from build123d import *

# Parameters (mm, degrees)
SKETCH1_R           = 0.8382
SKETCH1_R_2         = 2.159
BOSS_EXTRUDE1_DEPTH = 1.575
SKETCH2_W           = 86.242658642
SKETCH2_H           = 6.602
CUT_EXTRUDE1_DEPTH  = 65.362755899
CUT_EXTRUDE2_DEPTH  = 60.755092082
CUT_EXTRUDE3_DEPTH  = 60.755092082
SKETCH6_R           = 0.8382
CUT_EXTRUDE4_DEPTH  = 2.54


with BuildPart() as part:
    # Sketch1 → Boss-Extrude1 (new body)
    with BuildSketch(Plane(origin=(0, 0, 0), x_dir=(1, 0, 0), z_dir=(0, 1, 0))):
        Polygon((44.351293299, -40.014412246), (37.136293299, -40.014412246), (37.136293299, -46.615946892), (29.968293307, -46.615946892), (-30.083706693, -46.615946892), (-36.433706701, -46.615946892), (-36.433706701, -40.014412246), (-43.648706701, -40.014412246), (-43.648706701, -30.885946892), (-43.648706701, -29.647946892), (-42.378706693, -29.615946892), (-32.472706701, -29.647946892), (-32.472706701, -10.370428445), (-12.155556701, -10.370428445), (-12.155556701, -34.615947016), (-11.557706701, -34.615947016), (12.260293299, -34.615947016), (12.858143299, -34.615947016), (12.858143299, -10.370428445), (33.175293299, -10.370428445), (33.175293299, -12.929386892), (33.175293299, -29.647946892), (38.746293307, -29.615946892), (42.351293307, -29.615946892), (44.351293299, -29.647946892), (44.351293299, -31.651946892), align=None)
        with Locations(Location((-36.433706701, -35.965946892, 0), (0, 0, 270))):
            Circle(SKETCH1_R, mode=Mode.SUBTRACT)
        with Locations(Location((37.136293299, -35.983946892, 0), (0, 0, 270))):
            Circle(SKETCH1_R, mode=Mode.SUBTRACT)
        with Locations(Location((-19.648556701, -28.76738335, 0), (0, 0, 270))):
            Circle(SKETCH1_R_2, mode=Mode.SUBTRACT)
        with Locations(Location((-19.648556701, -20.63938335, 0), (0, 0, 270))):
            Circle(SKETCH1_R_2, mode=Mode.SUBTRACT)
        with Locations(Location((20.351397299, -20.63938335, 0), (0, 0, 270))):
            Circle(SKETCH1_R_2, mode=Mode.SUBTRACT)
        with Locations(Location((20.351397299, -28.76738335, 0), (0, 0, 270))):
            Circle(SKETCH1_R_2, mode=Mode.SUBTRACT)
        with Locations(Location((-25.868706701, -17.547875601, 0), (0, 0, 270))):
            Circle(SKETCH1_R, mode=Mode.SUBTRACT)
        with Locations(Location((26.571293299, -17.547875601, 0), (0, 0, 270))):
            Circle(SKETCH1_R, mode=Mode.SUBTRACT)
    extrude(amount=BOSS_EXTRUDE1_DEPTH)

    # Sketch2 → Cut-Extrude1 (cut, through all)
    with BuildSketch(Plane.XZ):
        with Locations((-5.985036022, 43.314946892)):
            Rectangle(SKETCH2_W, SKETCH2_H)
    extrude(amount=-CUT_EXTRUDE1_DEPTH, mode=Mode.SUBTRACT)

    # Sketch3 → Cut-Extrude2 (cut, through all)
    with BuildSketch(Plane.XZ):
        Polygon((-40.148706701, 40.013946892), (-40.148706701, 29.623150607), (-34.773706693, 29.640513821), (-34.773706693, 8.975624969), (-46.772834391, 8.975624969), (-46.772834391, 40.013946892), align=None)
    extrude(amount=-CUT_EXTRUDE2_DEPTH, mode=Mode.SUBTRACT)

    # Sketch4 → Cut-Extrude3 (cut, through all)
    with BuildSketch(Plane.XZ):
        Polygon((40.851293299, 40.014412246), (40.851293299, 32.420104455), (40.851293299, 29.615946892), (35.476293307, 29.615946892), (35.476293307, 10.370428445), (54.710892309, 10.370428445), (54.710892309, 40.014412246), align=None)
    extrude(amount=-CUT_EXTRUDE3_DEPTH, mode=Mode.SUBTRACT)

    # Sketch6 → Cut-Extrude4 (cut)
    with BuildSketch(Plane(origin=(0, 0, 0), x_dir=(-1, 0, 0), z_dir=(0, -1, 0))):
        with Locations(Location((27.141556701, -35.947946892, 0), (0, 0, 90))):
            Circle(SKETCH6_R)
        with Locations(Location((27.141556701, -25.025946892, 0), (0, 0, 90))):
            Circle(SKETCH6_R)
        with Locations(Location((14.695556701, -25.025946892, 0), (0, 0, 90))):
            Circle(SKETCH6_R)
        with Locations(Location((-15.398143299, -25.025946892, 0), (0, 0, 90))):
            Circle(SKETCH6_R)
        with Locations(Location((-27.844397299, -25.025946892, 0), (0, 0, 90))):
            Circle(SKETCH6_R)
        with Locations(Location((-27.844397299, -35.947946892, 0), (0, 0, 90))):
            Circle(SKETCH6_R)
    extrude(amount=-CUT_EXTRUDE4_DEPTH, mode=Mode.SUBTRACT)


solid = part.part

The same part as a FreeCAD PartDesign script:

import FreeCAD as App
import Part
import Sketcher

V = App.Vector
Q = App.Units.Quantity


def add_polygon(sketch, points):
    """Adds a closed chain of lines whose ends are joined by coincident constraints."""
    first, n = sketch.GeometryCount, len(points)
    for a, b in zip(points, points[1:] + points[:1]):
        sketch.addGeometry(Part.LineSegment(App.Vector(*a, 0), App.Vector(*b, 0)), False)
    for i in range(n):
        sketch.addConstraint(Sketcher.Constraint("Coincident", first + i, 2, first + (i + 1) % n, 1))

doc = App.newDocument("Part")
params = doc.addObject("Spreadsheet::Sheet", "Params")
for row, (alias, value) in enumerate([
    ("sketch1_diameter", "0.17 in"),
    ("sketch1_diameter2", "0.066 in"),
    ("pad1_length", "1.575 mm"),
    ("sketch5_diameter", "0.066 in"),
    ("pocket4_length", "0.1 in"),
], start=1):
    params.set(f"A{row}", alias)
    params.set(f"B{row}", "=" + value)
    params.setAlias(f"B{row}", alias)

body = doc.addObject("PartDesign::Body", "Body")

sketch1 = doc.addObject("Sketcher::SketchObject", "Sketch")
body.addObject(sketch1)
sketch1.AttachmentSupport = (doc.XZ_Plane, [""])
sketch1.MapMode = "FlatFace"
add_polygon(sketch1, [(37.136293, 40.014412), (44.351293, 40.014412), (44.351293, 29.647947), (42.351293, 29.615947), (38.746293, 29.615947), (33.175293, 29.647947), (33.175293, 10.370428), (12.858143, 10.370428), (12.858143, 34.615947), (-12.155557, 34.615947), (-12.155557, 10.370428), (-32.472707, 10.370428), (-32.472707, 29.647947), (-42.378707, 29.615947), (-43.648707, 29.647947), (-43.648707, 40.014412), (-36.433707, 40.014412), (-36.433707, 46.615947), (37.136293, 46.615947)])
sketch1.addGeometry(Part.Circle(V(37.136293, 35.983947, 0), V(0, 0, 1), 0.8382), False)
sketch1.addGeometry(Part.Circle(V(20.351397, 28.767383, 0), V(0, 0, 1), 2.159), False)
sketch1.addGeometry(Part.Circle(V(-36.433707, 35.965947, 0), V(0, 0, 1), 0.8382), False)
sketch1.addGeometry(Part.Circle(V(-19.648557, 28.767383, 0), V(0, 0, 1), 2.159), False)
sketch1.addGeometry(Part.Circle(V(20.351397, 20.639383, 0), V(0, 0, 1), 2.159), False)
sketch1.addGeometry(Part.Circle(V(26.571293, 17.547876, 0), V(0, 0, 1), 0.8382), False)
sketch1.addGeometry(Part.Circle(V(-19.648557, 20.639383, 0), V(0, 0, 1), 2.159), False)
sketch1.addGeometry(Part.Circle(V(-25.868707, 17.547876, 0), V(0, 0, 1), 0.8382), False)
sketch1.addConstraint(Sketcher.Constraint("Horizontal", 0))
sketch1.addConstraint(Sketcher.Constraint("Vertical", 1))
sketch1.addConstraint(Sketcher.Constraint("Horizontal", 3))
sketch1.addConstraint(Sketcher.Constraint("Vertical", 5))
sketch1.addConstraint(Sketcher.Constraint("Horizontal", 6))
sketch1.addConstraint(Sketcher.Constraint("Vertical", 7))
sketch1.addConstraint(Sketcher.Constraint("Horizontal", 8))
sketch1.addConstraint(Sketcher.Constraint("Vertical", 9))
sketch1.addConstraint(Sketcher.Constraint("Horizontal", 10))
sketch1.addConstraint(Sketcher.Constraint("Vertical", 11))
sketch1.addConstraint(Sketcher.Constraint("Vertical", 14))
sketch1.addConstraint(Sketcher.Constraint("Horizontal", 15))
sketch1.addConstraint(Sketcher.Constraint("Vertical", 16))
sketch1.addConstraint(Sketcher.Constraint("Horizontal", 17))
sketch1.addConstraint(Sketcher.Constraint("Vertical", 18))
sketch1.addConstraint(Sketcher.Constraint("Equal", 19, 21))
sketch1.addConstraint(Sketcher.Constraint("Equal", 20, 22))
sketch1.addConstraint(Sketcher.Constraint("Equal", 22, 23))
sketch1.addConstraint(Sketcher.Constraint("Equal", 21, 24))
sketch1.addConstraint(Sketcher.Constraint("Equal", 23, 25))
sketch1.addConstraint(Sketcher.Constraint("Equal", 24, 26))
sketch1.addConstraint(Sketcher.Constraint("Horizontal", 20, 3, 22, 3))
sketch1.addConstraint(Sketcher.Constraint("Horizontal", 23, 3, 25, 3))
sketch1.addConstraint(Sketcher.Constraint("Horizontal", 24, 3, 26, 3))
sketch1.addConstraint(Sketcher.Constraint("Horizontal", 1, 2, 4, 2))
sketch1.addConstraint(Sketcher.Constraint("Horizontal", 6, 2, 9, 2))
sketch1.addConstraint(Sketcher.Constraint("Horizontal", 4, 2, 11, 2))
sketch1.addConstraint(Sketcher.Constraint("Horizontal", 3, 2, 12, 2))
sketch1.addConstraint(Sketcher.Constraint("Horizontal", 11, 2, 13, 2))
sketch1.addConstraint(Sketcher.Constraint("Horizontal", 0, 2, 14, 2))
sketch1.addConstraint(Sketcher.Constraint("Vertical", 20, 3, 23, 3))
sketch1.addConstraint(Sketcher.Constraint("Vertical", 22, 3, 25, 3))
sketch1.addConstraint(Sketcher.Constraint("Vertical", 21, 3, 15, 2))
sketch1.addConstraint(Sketcher.Constraint("Vertical", 19, 3, 17, 2))
sketch1.addConstraint(Sketcher.Constraint("Equal", 6, 10))
sketch1.addConstraint(Sketcher.Constraint("Equal", 0, 15))
sketch1.addConstraint(Sketcher.Constraint("Diameter", 20, Q("0.17 in")))
sketch1.addConstraint(Sketcher.Constraint("Diameter", 19, Q("0.066 in")))
sketch1.addConstraint(Sketcher.Constraint("DistanceX", 24, 3, 0, 2, Q("0.7 in")))
sketch1.addConstraint(Sketcher.Constraint("DistanceX", 13, 2, 26, 3, Q("0.7 in")))
sketch1.addConstraint(Sketcher.Constraint("DistanceY", 23, 3, 20, 3, Q("0.32 in")))
sketch1.addConstraint(Sketcher.Constraint("DistanceX", 4, 2, 1, 2, Q("0.44 in")))
sketch1.addConstraint(Sketcher.Constraint("DistanceX", 10, 2, 26, 3, Q("0.26 in")))
sketch1.addConstraint(Sketcher.Constraint("DistanceY", 12, 2, 21, 3, Q("0.25 in")))
sketch1.addConstraint(Sketcher.Constraint("DistanceX", 12, 2, 11, 2, Q("0.39 in")))
sketch1.addConstraint(Sketcher.Constraint("DistanceX", 22, 3, 8, 2, Q("0.295 in")))
sketch1.addConstraint(Sketcher.Constraint("DistanceX", 0, 1, 0, 2, Q("7.215 mm")))
sketch1.addConstraint(Sketcher.Constraint("DistanceX", 3, 2, 3, 1, Q("3.605 mm")))
sketch1.addConstraint(Sketcher.Constraint("DistanceX", 8, 2, 8, 1, Q("25.0137 mm")))
sketch1.addConstraint(Sketcher.Constraint("DistanceX", 17, 1, 17, 2, Q("73.57 mm")))
sketch1.addConstraint(Sketcher.Constraint("DistanceY", 5, 2, 5, 1, Q("19.277518 mm")))
sketch1.addConstraint(Sketcher.Constraint("DistanceY", 7, 1, 7, 2, Q("24.245519 mm")))
sketch1.addConstraint(Sketcher.Constraint("DistanceY", 21, 3, 19, 3, Q("0.018 mm")))
sketch1.addConstraint(Sketcher.Constraint("DistanceY", 1, 2, 19, 3, Q("6.336 mm")))
sketch1.addConstraint(Sketcher.Constraint("DistanceX", 2, 2, 1, 2, Q("2 mm")))
sketch1.addConstraint(Sketcher.Constraint("DistanceY", 21, 3, 16, 2, Q("10.65 mm")))
sketch1.addConstraint(Sketcher.Constraint("DistanceY", 1, 2, 1, 1, Q("10.366465 mm")))
sketch1.addConstraint(Sketcher.Constraint("DistanceY", -1, 1, 5, 2, Q("10.370428 mm")))
sketch1.addConstraint(Sketcher.Constraint("DistanceY", 24, 3, 19, 3, Q("18.436071 mm")))
sketch1.addConstraint(Sketcher.Constraint("DistanceY", 20, 3, 0, 2, Q("11.247029 mm")))
sketch1.addConstraint(Sketcher.Constraint("DistanceX", -1, 1, 19, 3, Q("37.136293 mm")))
sketch1.addConstraint(Sketcher.Constraint("DistanceX", -1, 1, 20, 3, Q("20.351397 mm")))
sketch1.setExpression("Constraints[55]", "Params.sketch1_diameter")
sketch1.setExpression("Constraints[56]", "Params.sketch1_diameter2")
pad1 = doc.addObject("PartDesign::Pad", "Pad")
body.addObject(pad1)
pad1.Profile = sketch1
pad1.setExpression("Length", "Params.pad1_length")
pad1.Reversed = True

sketch2 = doc.addObject("Sketcher::SketchObject", "Sketch001")
body.addObject(sketch2)
sketch2.AttachmentSupport = (doc.XZ_Plane, [""])
sketch2.MapMode = "FlatFace"
add_polygon(sketch2, [(-49.106365, 46.615947), (-49.106365, 40.013947), (37.136293, 40.013947), (37.136293, 46.615947)])
sketch2.addConstraint(Sketcher.Constraint("Vertical", 0))
sketch2.addConstraint(Sketcher.Constraint("Horizontal", 1))
sketch2.addConstraint(Sketcher.Constraint("Vertical", 2))
sketch2.addConstraint(Sketcher.Constraint("Horizontal", 3))
sketch2.addConstraint(Sketcher.Constraint("DistanceY", 0, 2, 0, 1, Q("6.602 mm")))
sketch2.addConstraint(Sketcher.Constraint("DistanceX", 1, 1, 1, 2, Q("86.242659 mm")))
sketch2.addConstraint(Sketcher.Constraint("DistanceX", 0, 2, -1, 1, Q("49.106365 mm")))
sketch2.addConstraint(Sketcher.Constraint("DistanceY", -1, 1, 0, 2, Q("40.013947 mm")))
pocket1 = doc.addObject("PartDesign::Pocket", "Pocket")
body.addObject(pocket1)
pocket1.Profile = sketch2
pocket1.Type = "ThroughAll"

sketch3 = doc.addObject("Sketcher::SketchObject", "Sketch002")
body.addObject(sketch3)
sketch3.AttachmentSupport = (doc.XZ_Plane, [""])
sketch3.MapMode = "FlatFace"
add_polygon(sketch3, [(-40.148707, 29.623151), (-40.148707, 40.013947), (-46.772834, 40.013947), (-46.772834, 8.975625), (-34.773707, 8.975625), (-34.773707, 29.640514)])
sketch3.addConstraint(Sketcher.Constraint("Vertical", 0))
sketch3.addConstraint(Sketcher.Constraint("Horizontal", 1))
sketch3.addConstraint(Sketcher.Constraint("Vertical", 2))
sketch3.addConstraint(Sketcher.Constraint("Horizontal", 3))
sketch3.addConstraint(Sketcher.Constraint("Vertical", 4))
sketch3.addConstraint(Sketcher.Constraint("DistanceY", 2, 2, 2, 1, Q("31.038322 mm")))
sketch3.addConstraint(Sketcher.Constraint("DistanceY", 4, 1, 4, 2, Q("20.664889 mm")))
sketch3.addConstraint(Sketcher.Constraint("DistanceX", 0, 2, 3, 2, Q("5.375 mm")))
sketch3.addConstraint(Sketcher.Constraint("DistanceX", 1, 2, 1, 1, Q("6.624128 mm")))
sketch3.addConstraint(Sketcher.Constraint("DistanceY", 0, 1, 0, 2, Q("10.390796 mm")))
sketch3.addConstraint(Sketcher.Constraint("DistanceY", -1, 1, 5, 2, Q("29.623151 mm")))
sketch3.addConstraint(Sketcher.Constraint("DistanceX", 0, 2, -1, 1, Q("40.148707 mm")))
pocket2 = doc.addObject("PartDesign::Pocket", "Pocket001")
body.addObject(pocket2)
pocket2.Profile = sketch3
pocket2.Type = "ThroughAll"

sketch4 = doc.addObject("Sketcher::SketchObject", "Sketch003")
body.addObject(sketch4)
sketch4.AttachmentSupport = (doc.XZ_Plane, [""])
sketch4.MapMode = "FlatFace"
add_polygon(sketch4, [(40.851293, 40.014412), (40.851293, 29.615947), (35.476293, 29.615947), (35.476293, 10.370428), (54.710892, 10.370428), (54.710892, 40.014412)])
sketch4.addConstraint(Sketcher.Constraint("Vertical", 0))
sketch4.addConstraint(Sketcher.Constraint("Horizontal", 1))
sketch4.addConstraint(Sketcher.Constraint("Vertical", 2))
sketch4.addConstraint(Sketcher.Constraint("Horizontal", 3))
sketch4.addConstraint(Sketcher.Constraint("Vertical", 4))
sketch4.addConstraint(Sketcher.Constraint("Horizontal", 5))
sketch4.addConstraint(Sketcher.Constraint("DistanceX", 1, 2, 1, 1, Q("5.375 mm")))
sketch4.addConstraint(Sketcher.Constraint("DistanceX", 3, 1, 3, 2, Q("19.234599 mm")))
sketch4.addConstraint(Sketcher.Constraint("DistanceY", 2, 2, 2, 1, Q("19.245518 mm")))
sketch4.addConstraint(Sketcher.Constraint("DistanceY", 0, 2, 0, 1, Q("10.398465 mm")))
sketch4.addConstraint(Sketcher.Constraint("DistanceY", -1, 1, 2, 2, Q("10.370428 mm")))
sketch4.addConstraint(Sketcher.Constraint("DistanceX", -1, 1, 0, 2, Q("40.851293 mm")))
pocket3 = doc.addObject("PartDesign::Pocket", "Pocket002")
body.addObject(pocket3)
pocket3.Profile = sketch4
pocket3.Type = "ThroughAll"

sketch5 = doc.addObject("Sketcher::SketchObject", "Sketch004")
body.addObject(sketch5)
sketch5.AttachmentSupport = (doc.XZ_Plane, [""])
sketch5.MapMode = "FlatFace"
sketch5.addGeometry(Part.Circle(V(-27.141557, 35.947947, 0), V(0, 0, 1), 0.8382), False)
sketch5.addGeometry(Part.Circle(V(-27.141557, 25.025947, 0), V(0, 0, 1), 0.8382), False)
sketch5.addGeometry(Part.Circle(V(-14.695557, 25.025947, 0), V(0, 0, 1), 0.8382), False)
sketch5.addGeometry(Part.Circle(V(15.398143, 25.025947, 0), V(0, 0, 1), 0.8382), False)
sketch5.addGeometry(Part.Circle(V(27.844397, 25.025947, 0), V(0, 0, 1), 0.8382), False)
sketch5.addGeometry(Part.Circle(V(27.844397, 35.947947, 0), V(0, 0, 1), 0.8382), False)
sketch5.addConstraint(Sketcher.Constraint("Equal", 0, 1))
sketch5.addConstraint(Sketcher.Constraint("Equal", 1, 2))
sketch5.addConstraint(Sketcher.Constraint("Equal", 2, 3))
sketch5.addConstraint(Sketcher.Constraint("Equal", 3, 4))
sketch5.addConstraint(Sketcher.Constraint("Equal", 4, 5))
sketch5.addConstraint(Sketcher.Constraint("Horizontal", 1, 3, 2, 3))
sketch5.addConstraint(Sketcher.Constraint("Horizontal", 2, 3, 3, 3))
sketch5.addConstraint(Sketcher.Constraint("Horizontal", 3, 3, 4, 3))
sketch5.addConstraint(Sketcher.Constraint("Horizontal", 0, 3, 5, 3))
sketch5.addConstraint(Sketcher.Constraint("Vertical", 0, 3, 1, 3))
sketch5.addConstraint(Sketcher.Constraint("Vertical", 4, 3, 5, 3))
sketch5.addConstraint(Sketcher.Constraint("Diameter", 0, Q("0.066 in")))
sketch5.addConstraint(Sketcher.Constraint("DistanceY", 1, 3, 0, 3, Q("0.43 in")))
sketch5.addConstraint(Sketcher.Constraint("DistanceX", 1, 3, 2, 3, Q("0.49 in")))
sketch5.addConstraint(Sketcher.Constraint("DistanceX", 2, 3, 3, 3, Q("30.0937 mm")))
sketch5.addConstraint(Sketcher.Constraint("DistanceX", 0, 3, -1, 1, Q("27.141557 mm")))
sketch5.addConstraint(Sketcher.Constraint("DistanceY", -1, 1, 0, 3, Q("35.947947 mm")))
sketch5.addConstraint(Sketcher.Constraint("DistanceX", -1, 1, 4, 3, Q("27.844397 mm")))
sketch5.setExpression("Constraints[11]", "Params.sketch5_diameter")
pocket4 = doc.addObject("PartDesign::Pocket", "Pocket003")
body.addObject(pocket4)
pocket4.Profile = sketch5
pocket4.setExpression("Length", "Params.pocket4_length")

doc.recompute()
